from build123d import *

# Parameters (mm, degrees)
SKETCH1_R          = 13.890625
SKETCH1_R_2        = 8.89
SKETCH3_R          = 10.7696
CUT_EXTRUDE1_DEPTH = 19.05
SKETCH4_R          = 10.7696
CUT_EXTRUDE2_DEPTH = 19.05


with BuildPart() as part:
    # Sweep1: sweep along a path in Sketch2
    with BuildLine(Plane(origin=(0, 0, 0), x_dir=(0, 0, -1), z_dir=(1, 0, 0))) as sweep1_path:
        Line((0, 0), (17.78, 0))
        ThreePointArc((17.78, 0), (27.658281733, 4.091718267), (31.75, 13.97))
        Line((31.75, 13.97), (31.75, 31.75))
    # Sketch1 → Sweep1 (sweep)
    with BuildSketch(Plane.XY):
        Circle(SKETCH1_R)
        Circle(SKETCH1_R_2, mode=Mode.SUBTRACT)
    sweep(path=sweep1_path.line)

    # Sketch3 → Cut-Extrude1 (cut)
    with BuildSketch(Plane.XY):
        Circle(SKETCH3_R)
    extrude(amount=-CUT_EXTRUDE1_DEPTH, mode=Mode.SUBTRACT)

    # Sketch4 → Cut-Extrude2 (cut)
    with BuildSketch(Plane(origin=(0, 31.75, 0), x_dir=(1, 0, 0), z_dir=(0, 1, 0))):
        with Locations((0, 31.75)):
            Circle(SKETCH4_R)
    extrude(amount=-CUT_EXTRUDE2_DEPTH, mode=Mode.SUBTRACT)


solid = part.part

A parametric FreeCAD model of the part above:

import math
import FreeCAD as App
import Part
import Sketcher
Q = App.Units.Quantity

doc = App.newDocument("Part")
params = doc.addObject("Spreadsheet::Sheet", "Params")
for row, (alias, value) in enumerate([
    ("sketch1_diameter", "0.7 in"),
    ("sketch1_diameter2", "1.09375 in"),
    ("sketch2_radius", "0.55 in"),
    ("sketch2_width", "0.7 in"),
    ("sketch3_diameter", "0.848 in"),
    ("pocket1_length", "0.75 in"),
    ("sketch4_diameter", "0.848 in"),
    ("pocket2_length", "0.75 in"),
], start=1):
    params.set(f"A{row}", alias)
    params.set(f"B{row}", "=" + value)
    params.setAlias(f"B{row}", alias)

body = doc.addObject("PartDesign::Body", "Body")

# Sketch on XY plane
sketch1 = doc.addObject("Sketcher::SketchObject", "Sketch")
body.addObject(sketch1)
sketch1.AttachmentSupport = (doc.XY_Plane, [""])
sketch1.MapMode = "FlatFace"
sketch1.addGeometry(Part.Circle(App.Vector(0, 0, 0), App.Vector(0, 0, 1), 14), False)
sketch1.addGeometry(Part.Circle(App.Vector(0, 0, 0), App.Vector(0, 0, 1), 9), False)
sketch1.addConstraint(Sketcher.Constraint("Coincident", 0, 3, -1, 1))
sketch1.addConstraint(Sketcher.Constraint("Coincident", 1, 3, -1, 1))
sketch1.addConstraint(Sketcher.Constraint("Diameter", 1, Q("0.7 in")))
sketch1.addConstraint(Sketcher.Constraint("Diameter", 0, Q("1.09375 in")))
sketch1.setExpression("Constraints[2]", "Params.sketch1_diameter")
sketch1.setExpression("Constraints[3]", "Params.sketch1_diameter2")

# Sketch on YZ plane
sketch2 = doc.addObject("Sketcher::SketchObject", "Sketch001")
body.addObject(sketch2)
sketch2.AttachmentSupport = (doc.YZ_Plane, [""])
sketch2.MapMode = "FlatFace"
sketch2.addGeometry(Part.LineSegment(App.Vector(0, 0, 0), App.Vector(0, -18, 0)), False)
sketch2.addGeometry(Part.ArcOfCircle(Part.Circle(App.Vector(14, -18, 0), App.Vector(0, 0, 1), 14), math.radians(-180), math.radians(-90)), False)
sketch2.addGeometry(Part.LineSegment(App.Vector(14, -32, 0), App.Vector(32, -32, 0)), False)
sketch2.addConstraint(Sketcher.Constraint("Tangent", 0, 2, 1, 1))
sketch2.addConstraint(Sketcher.Constraint("Tangent", 1, 2, 2, 1))
sketch2.addConstraint(Sketcher.Constraint("Vertical", 0))
sketch2.addConstraint(Sketcher.Constraint("Horizontal", 2))
sketch2.addConstraint(Sketcher.Constraint("Coincident", 0, 1, -1, 1))
sketch2.addConstraint(Sketcher.Constraint("Equal", 2, 0))
sketch2.addConstraint(Sketcher.Constraint("Radius", 1, Q("0.55 in")))
sketch2.addConstraint(Sketcher.Constraint("DistanceX", 2, 1, 2, 2, Q("0.7 in")))
sketch2.setExpression("Constraints[6]", "Params.sketch2_radius")
sketch2.setExpression("Constraints[7]", "Params.sketch2_width")
doc.recompute()

additivepipe = doc.addObject("PartDesign::AdditivePipe", "AdditivePipe")
body.addObject(additivepipe)
additivepipe.Profile = sketch1
additivepipe.Spine = (sketch2, ["Edge1", "Edge2", "Edge3"])

# Sketch on XY plane
sketch3 = doc.addObject("Sketcher::SketchObject", "Sketch002")
body.addObject(sketch3)
sketch3.AttachmentSupport = (doc.XY_Plane, [""])
sketch3.MapMode = "FlatFace"
sketch3.addGeometry(Part.Circle(App.Vector(0, 0, 0), App.Vector(0, 0, 1), 11), False)
sketch3.addConstraint(Sketcher.Constraint("Coincident", 0, 3, -1, 1))
sketch3.addConstraint(Sketcher.Constraint("Diameter", 0, Q("0.848 in")))
sketch3.setExpression("Constraints[1]", "Params.sketch3_diameter")
pocket1 = doc.addObject("PartDesign::Pocket", "Pocket")
body.addObject(pocket1)
pocket1.Profile = sketch3
pocket1.setExpression("Length", "Params.pocket1_length")

# Sketch on XZ plane
sketch4 = doc.addObject("Sketcher::SketchObject", "Sketch003")
body.addObject(sketch4)
sketch4.AttachmentSupport = (doc.XZ_Plane, [""])
sketch4.MapMode = "FlatFace"
sketch4.AttachmentOffset = App.Placement(App.Vector(0, 0, -1.25 * 25.4), App.Rotation())
sketch4.addGeometry(Part.Circle(App.Vector(0, -32, 0), App.Vector(0, 0, 1), 11), False)
sketch4.addConstraint(Sketcher.Constraint("PointOnObject", 0, 3, -2))
sketch4.addConstraint(Sketcher.Constraint("Diameter", 0, Q("0.848 in")))
sketch4.addConstraint(Sketcher.Constraint("DistanceY", 0, 3, -1, 1, Q("1.25 in")))
sketch4.setExpression("Constraints[1]", "Params.sketch4_diameter")
pocket2 = doc.addObject("PartDesign::Pocket", "Pocket001")
body.addObject(pocket2)
pocket2.Profile = sketch4
pocket2.setExpression("Length", "Params.pocket2_length")
pocket2.Reversed = True

doc.recompute()
